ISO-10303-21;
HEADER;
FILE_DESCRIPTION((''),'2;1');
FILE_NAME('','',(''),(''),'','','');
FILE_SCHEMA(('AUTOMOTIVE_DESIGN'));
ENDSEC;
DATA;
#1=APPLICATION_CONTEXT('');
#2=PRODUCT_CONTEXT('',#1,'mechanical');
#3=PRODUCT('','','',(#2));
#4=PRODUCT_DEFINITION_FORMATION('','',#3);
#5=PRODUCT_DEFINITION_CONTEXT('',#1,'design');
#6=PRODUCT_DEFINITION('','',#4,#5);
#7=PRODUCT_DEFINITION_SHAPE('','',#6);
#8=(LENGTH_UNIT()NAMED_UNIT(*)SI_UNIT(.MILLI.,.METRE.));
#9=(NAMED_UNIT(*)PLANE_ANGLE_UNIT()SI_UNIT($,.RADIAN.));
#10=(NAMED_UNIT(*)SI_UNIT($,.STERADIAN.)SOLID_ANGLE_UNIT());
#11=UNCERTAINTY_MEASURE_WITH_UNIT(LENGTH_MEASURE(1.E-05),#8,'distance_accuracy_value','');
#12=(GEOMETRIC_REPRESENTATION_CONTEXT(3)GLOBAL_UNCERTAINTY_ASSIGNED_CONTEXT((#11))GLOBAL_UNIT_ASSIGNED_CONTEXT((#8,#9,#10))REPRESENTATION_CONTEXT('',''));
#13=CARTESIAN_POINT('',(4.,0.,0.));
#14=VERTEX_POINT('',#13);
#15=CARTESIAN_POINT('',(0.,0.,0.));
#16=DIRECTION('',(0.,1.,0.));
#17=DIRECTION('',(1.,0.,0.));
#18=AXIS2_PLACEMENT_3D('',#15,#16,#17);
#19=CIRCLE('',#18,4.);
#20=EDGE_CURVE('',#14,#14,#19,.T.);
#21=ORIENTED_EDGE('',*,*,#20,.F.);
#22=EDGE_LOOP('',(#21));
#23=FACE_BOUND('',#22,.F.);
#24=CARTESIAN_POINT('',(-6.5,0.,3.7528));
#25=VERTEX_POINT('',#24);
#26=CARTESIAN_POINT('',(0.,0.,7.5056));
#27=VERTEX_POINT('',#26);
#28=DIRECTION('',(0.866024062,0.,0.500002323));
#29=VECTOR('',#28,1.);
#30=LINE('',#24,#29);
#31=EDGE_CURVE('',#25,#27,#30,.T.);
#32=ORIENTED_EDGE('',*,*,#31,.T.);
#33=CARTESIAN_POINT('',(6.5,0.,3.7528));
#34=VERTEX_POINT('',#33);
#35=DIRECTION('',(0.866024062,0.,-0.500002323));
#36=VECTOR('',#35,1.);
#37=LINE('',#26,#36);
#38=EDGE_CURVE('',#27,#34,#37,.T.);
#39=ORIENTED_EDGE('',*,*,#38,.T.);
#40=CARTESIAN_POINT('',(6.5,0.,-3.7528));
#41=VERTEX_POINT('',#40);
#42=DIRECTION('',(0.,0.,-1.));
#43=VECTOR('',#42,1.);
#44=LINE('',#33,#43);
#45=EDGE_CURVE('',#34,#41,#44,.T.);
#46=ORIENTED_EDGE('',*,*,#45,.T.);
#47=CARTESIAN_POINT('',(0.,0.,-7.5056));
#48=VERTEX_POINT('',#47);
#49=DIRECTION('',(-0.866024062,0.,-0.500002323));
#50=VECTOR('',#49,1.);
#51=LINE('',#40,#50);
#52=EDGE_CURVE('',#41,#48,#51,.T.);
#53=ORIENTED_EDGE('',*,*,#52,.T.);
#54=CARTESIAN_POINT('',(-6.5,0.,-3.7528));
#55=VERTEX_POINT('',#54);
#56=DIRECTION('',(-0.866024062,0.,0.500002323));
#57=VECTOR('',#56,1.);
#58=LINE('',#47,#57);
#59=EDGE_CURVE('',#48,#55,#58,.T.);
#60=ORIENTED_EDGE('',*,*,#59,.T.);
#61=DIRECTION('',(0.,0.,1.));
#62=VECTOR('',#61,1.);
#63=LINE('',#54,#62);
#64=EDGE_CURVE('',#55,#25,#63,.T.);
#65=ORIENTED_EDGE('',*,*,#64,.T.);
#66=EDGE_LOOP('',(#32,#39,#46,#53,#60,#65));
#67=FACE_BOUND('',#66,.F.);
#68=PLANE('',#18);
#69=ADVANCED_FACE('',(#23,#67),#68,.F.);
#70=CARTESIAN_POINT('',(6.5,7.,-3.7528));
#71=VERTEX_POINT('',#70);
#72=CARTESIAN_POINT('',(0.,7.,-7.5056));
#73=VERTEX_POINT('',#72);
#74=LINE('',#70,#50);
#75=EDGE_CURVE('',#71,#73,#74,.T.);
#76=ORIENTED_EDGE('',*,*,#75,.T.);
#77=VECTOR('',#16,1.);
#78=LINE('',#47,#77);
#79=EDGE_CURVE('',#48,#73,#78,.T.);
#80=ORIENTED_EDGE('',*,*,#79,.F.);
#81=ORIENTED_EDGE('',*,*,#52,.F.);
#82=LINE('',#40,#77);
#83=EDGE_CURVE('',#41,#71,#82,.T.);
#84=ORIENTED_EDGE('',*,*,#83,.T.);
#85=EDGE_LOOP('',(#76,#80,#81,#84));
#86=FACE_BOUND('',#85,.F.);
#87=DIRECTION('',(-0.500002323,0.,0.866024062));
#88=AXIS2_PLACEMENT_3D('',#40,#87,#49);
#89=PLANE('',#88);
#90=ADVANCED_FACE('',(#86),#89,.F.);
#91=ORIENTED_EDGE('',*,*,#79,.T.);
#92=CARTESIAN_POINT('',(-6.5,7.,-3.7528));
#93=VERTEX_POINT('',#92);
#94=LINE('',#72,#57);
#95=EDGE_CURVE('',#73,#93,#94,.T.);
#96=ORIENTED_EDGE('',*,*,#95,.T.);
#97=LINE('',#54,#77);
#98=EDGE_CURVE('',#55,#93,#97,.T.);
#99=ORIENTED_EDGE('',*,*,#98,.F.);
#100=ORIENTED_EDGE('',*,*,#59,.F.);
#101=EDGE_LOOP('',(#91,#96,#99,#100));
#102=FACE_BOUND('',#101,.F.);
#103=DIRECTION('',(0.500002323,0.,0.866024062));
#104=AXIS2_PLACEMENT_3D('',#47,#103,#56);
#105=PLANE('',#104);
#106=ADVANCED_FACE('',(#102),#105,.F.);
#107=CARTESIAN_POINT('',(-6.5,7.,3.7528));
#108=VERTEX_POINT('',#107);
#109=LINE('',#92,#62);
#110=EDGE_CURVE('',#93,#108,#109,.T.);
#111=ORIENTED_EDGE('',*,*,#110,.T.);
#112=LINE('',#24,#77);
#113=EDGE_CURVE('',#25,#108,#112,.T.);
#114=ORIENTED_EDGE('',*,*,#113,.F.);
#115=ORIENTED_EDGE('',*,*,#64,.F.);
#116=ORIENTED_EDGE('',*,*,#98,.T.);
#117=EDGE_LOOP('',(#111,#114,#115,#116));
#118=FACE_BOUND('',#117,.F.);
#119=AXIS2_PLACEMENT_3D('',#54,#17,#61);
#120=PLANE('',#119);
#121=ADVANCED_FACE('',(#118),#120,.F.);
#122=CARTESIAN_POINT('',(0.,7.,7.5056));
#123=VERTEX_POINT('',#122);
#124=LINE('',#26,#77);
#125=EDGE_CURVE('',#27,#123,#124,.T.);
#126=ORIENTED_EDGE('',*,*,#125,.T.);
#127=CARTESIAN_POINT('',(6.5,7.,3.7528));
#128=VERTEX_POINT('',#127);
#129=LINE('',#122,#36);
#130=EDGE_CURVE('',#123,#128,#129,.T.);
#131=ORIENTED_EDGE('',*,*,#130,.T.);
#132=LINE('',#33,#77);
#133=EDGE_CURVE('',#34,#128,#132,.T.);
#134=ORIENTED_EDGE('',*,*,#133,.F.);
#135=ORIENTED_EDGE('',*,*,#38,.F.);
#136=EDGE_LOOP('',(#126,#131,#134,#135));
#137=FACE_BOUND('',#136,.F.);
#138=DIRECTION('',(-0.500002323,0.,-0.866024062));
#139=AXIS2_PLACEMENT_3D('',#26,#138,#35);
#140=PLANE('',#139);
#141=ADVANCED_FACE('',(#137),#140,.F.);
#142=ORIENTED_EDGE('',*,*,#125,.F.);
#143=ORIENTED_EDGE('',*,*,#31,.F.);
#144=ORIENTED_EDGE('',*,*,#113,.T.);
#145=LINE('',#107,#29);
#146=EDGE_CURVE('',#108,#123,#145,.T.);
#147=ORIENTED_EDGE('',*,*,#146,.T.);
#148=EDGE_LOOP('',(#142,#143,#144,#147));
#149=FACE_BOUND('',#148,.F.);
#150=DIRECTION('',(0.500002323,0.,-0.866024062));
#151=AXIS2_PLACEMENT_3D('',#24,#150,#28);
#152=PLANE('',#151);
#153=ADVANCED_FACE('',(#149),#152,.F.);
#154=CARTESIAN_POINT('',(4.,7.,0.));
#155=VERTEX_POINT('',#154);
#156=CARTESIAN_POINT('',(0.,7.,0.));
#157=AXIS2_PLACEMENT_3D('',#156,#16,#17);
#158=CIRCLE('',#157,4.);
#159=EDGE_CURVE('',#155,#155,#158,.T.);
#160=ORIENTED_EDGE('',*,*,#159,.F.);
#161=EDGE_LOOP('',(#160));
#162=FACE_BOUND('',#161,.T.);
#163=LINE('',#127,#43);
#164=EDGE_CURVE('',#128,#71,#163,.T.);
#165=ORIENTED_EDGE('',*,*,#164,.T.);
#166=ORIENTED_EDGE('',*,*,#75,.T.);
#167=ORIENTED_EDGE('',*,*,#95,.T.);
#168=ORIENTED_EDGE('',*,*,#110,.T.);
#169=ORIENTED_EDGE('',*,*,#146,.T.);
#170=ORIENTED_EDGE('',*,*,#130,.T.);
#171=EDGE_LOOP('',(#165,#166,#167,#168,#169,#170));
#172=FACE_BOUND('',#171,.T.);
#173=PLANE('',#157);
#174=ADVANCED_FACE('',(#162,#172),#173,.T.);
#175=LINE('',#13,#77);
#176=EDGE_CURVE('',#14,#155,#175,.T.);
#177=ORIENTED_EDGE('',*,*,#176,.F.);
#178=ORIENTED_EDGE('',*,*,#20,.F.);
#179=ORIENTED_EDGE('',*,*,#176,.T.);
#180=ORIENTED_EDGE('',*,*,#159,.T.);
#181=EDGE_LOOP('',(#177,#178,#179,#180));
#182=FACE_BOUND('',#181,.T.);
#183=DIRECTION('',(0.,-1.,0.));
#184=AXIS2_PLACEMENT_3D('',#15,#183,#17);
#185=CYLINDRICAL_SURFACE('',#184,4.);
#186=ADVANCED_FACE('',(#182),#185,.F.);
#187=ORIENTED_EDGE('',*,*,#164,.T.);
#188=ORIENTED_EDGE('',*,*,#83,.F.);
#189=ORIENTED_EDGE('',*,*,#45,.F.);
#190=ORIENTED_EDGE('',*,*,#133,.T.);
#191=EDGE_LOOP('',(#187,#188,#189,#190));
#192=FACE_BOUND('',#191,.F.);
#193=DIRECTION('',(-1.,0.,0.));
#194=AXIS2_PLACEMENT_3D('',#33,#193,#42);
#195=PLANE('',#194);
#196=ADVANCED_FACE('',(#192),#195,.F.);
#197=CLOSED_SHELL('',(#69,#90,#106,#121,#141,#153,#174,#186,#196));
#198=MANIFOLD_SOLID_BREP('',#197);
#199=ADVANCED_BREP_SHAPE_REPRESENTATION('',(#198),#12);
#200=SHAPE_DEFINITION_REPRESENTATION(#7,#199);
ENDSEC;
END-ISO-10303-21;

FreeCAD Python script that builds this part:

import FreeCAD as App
import Part
import Sketcher
Q = App.Units.Quantity


def add_polygon(sketch, points):
    """Adds a closed chain of lines whose ends are joined by coincident constraints."""
    first, n = sketch.GeometryCount, len(points)
    for a, b in zip(points, points[1:] + points[:1]):
        sketch.addGeometry(Part.LineSegment(App.Vector(*a, 0), App.Vector(*b, 0)), False)
    for i in range(n):
        sketch.addConstraint(Sketcher.Constraint("Coincident", first + i, 2, first + (i + 1) % n, 1))

doc = App.newDocument("Part")
body = doc.addObject("PartDesign::Body", "Body")

# Sketch on XZ plane
sketch1 = doc.addObject("Sketcher::SketchObject", "Sketch")
body.addObject(sketch1)
sketch1.AttachmentSupport = (doc.XZ_Plane, [""])
sketch1.MapMode = "FlatFace"
add_polygon(sketch1, [(-6.5, -3.8), (-6.5, 3.8), (0, 7.5), (6.5, 3.8), (6.5, -3.8), (0, -7.5)])  # lines 0-5
sketch1.addGeometry(Part.Circle(App.Vector(0, 0, 0), App.Vector(0, 0, 1), 4), False)  # 6
sketch1.addConstraint([
    Sketcher.Constraint("Vertical", 0),
    Sketcher.Constraint("Vertical", 3),
    Sketcher.Constraint("Coincident", 6, 3, -1, 1),
    Sketcher.Constraint("Symmetric", 0, 2, 3, 2, -1, 1),
    Sketcher.Constraint("Symmetric", 1, 2, 4, 2, -1, 1),
    Sketcher.Constraint("PointOnObject", 1, 2, -2),
    Sketcher.Constraint("Parallel", 2, 5),
    Sketcher.Constraint("Horizontal", 0, 2, 2, 2),
    Sketcher.Constraint("Diameter", 6, 8.0),
    Sketcher.Constraint("DistanceX", 0, 2, 2, 2, 13.0),
    Sketcher.Constraint("Angle", 1, Q("30.0002 deg")),
    Sketcher.Constraint("DistanceY", 0, 1, 0, 2, 7.5056),
])
pad1 = doc.addObject("PartDesign::Pad", "Pad")
body.addObject(pad1)
pad1.Profile = sketch1
pad1.Length = 7
pad1.Reversed = True

doc.recompute()
